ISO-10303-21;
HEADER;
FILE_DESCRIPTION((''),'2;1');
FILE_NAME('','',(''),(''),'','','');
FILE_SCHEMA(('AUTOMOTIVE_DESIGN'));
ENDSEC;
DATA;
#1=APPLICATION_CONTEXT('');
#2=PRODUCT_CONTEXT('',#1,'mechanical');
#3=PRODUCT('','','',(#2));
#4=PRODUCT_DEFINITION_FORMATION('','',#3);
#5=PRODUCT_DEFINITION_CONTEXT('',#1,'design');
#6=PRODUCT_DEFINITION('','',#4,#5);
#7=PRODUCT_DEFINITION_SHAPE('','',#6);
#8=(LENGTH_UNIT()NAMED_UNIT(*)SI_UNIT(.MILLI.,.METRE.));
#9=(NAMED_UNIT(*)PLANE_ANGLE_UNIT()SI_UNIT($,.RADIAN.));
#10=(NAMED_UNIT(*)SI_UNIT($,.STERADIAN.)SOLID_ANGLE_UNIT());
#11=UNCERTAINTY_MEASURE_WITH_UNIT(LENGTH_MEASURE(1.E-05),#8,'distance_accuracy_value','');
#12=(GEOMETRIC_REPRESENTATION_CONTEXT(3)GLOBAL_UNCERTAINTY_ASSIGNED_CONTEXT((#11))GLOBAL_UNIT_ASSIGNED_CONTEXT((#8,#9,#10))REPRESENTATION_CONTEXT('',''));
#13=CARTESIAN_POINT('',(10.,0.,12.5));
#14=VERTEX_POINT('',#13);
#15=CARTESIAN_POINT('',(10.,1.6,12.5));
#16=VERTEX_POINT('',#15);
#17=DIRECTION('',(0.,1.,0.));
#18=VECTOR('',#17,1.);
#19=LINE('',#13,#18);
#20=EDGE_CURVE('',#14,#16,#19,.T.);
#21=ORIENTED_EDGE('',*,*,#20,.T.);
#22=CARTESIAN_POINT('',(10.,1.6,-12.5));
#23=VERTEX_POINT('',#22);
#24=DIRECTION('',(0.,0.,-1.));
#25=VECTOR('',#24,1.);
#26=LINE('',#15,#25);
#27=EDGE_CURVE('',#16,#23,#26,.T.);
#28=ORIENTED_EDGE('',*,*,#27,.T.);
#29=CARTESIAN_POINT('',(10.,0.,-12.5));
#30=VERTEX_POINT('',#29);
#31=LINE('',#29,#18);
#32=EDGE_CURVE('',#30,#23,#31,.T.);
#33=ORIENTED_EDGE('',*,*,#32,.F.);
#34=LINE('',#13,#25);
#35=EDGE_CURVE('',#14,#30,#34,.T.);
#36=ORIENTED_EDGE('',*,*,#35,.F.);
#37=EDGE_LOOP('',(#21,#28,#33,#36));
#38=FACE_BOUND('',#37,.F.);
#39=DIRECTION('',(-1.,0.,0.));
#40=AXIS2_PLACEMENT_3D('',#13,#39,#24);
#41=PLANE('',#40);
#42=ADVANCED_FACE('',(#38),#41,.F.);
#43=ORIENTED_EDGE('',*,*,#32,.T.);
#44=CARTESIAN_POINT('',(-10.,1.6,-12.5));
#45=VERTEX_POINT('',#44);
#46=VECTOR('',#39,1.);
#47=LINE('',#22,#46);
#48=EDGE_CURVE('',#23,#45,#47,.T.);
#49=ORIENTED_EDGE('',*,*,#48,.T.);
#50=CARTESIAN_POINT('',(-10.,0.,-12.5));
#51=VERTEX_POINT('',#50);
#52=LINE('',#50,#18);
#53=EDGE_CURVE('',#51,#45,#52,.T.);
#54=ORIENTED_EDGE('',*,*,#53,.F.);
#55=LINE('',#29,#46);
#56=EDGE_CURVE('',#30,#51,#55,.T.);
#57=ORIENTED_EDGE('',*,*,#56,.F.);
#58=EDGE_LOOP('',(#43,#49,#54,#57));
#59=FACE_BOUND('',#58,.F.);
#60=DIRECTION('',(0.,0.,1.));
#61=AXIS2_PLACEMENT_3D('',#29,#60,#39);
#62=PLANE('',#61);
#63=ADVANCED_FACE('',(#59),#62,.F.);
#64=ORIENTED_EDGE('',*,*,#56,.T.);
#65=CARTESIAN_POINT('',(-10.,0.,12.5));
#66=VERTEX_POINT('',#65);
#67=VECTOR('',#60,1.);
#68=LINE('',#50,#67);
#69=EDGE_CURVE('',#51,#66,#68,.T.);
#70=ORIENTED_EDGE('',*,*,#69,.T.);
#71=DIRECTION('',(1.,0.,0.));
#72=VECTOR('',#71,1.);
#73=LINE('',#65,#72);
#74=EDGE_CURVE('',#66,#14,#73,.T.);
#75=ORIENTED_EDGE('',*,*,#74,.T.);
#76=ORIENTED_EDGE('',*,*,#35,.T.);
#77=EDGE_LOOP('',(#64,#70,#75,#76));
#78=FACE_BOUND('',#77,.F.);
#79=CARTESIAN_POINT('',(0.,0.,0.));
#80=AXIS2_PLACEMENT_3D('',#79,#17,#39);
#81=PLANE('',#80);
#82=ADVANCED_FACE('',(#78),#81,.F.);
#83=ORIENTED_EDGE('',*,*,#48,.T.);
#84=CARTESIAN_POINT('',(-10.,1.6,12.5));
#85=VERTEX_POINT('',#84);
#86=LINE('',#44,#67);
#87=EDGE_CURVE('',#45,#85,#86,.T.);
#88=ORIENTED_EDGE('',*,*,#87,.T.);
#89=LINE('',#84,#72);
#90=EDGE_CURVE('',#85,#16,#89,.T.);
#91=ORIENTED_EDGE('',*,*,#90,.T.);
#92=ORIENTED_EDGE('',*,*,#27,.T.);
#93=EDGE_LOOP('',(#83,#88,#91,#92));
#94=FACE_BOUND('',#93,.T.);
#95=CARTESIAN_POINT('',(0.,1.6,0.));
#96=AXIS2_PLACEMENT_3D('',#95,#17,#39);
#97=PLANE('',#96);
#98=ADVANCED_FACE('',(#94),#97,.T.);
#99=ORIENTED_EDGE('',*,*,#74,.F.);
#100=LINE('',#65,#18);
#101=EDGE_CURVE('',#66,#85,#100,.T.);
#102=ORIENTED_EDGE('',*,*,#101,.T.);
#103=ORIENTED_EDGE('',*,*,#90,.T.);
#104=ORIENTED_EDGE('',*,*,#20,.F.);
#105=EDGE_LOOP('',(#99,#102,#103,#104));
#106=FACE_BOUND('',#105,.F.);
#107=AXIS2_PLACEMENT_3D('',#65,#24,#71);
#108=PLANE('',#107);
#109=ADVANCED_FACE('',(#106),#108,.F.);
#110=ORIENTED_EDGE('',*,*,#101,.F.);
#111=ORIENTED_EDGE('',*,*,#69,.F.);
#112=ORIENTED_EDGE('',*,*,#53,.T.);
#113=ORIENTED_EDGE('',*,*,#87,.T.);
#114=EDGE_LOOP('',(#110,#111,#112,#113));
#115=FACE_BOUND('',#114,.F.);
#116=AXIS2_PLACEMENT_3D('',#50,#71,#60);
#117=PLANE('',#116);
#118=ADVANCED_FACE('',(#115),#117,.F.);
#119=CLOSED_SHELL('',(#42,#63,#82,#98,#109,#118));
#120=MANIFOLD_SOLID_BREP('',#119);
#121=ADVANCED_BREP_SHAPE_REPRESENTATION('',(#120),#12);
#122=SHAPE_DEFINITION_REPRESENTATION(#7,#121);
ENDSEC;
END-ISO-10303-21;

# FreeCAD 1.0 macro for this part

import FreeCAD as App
import Part
import Sketcher

V = App.Vector

doc = App.newDocument("Part")
body = doc.addObject("PartDesign::Body", "Body")

# Sketch on XZ plane
sketch1 = body.newObject("Sketcher::SketchObject", "Sketch")
sketch1.AttachmentSupport = (doc.getObject("XZ_Plane"), [""])
sketch1.MapMode = "FlatFace"
sketch1.addGeometry(Part.LineSegment(V(10, 12.5, 0), V(10, -12.5, 0)), False)
sketch1.addGeometry(Part.LineSegment(V(10, -12.5, 0), V(-10, -12.5, 0)), False)
sketch1.addGeometry(Part.LineSegment(V(-10, -12.5, 0), V(-10, 12.5, 0)), False)
sketch1.addGeometry(Part.LineSegment(V(-10, 12.5, 0), V(10, 12.5, 0)), False)
sketch1.addConstraint(Sketcher.Constraint("Coincident", 0, 2, 1, 1))
sketch1.addConstraint(Sketcher.Constraint("Coincident", 1, 2, 2, 1))
sketch1.addConstraint(Sketcher.Constraint("Coincident", 2, 2, 3, 1))
sketch1.addConstraint(Sketcher.Constraint("Coincident", 3, 2, 0, 1))
sketch1.addConstraint(Sketcher.Constraint("Vertical", 0))
sketch1.addConstraint(Sketcher.Constraint("Horizontal", 1))
sketch1.addConstraint(Sketcher.Constraint("Vertical", 2))
sketch1.addConstraint(Sketcher.Constraint("Horizontal", 3))
sketch1.addConstraint(Sketcher.Constraint("Symmetric", 0, 2, 2, 2, -1, 1))
sketch1.addConstraint(Sketcher.Constraint("DistanceX", 1, 2, 1, 1, 20.0))
sketch1.addConstraint(Sketcher.Constraint("DistanceY", 0, 2, 0, 1, 25.0))
pad1 = body.newObject("PartDesign::Pad", "Pad")
pad1.Profile = sketch1
pad1.Length = 1.6
pad1.Reversed = True

doc.recompute()
